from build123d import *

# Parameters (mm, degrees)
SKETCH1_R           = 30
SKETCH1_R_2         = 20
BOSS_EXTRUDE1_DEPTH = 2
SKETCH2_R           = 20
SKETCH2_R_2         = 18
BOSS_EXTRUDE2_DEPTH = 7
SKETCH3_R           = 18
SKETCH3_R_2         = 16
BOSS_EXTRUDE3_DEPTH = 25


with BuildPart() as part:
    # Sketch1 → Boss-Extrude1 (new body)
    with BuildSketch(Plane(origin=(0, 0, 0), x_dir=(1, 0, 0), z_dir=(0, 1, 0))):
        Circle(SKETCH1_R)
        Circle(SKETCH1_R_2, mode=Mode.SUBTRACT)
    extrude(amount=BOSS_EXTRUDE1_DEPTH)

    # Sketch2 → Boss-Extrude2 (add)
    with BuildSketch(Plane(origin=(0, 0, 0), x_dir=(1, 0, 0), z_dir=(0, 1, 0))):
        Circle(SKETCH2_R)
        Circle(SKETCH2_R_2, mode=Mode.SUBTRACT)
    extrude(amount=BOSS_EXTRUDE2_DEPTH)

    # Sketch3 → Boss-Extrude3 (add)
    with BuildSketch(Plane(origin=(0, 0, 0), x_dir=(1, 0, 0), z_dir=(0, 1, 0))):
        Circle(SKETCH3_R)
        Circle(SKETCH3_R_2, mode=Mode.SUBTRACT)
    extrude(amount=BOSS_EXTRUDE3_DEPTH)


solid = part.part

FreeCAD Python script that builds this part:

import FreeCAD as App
import Part
import Sketcher

V = App.Vector

doc = App.newDocument("Part")
body = doc.addObject("PartDesign::Body", "Body")

# Sketch on XZ plane
sketch1 = body.newObject("Sketcher::SketchObject", "Sketch")
sketch1.AttachmentSupport = (doc.getObject("XZ_Plane"), [""])
sketch1.MapMode = "FlatFace"
sketch1.addGeometry([
    Part.Circle(V(0, 0, 0), V(0, 0, 1), 30),
    Part.Circle(V(0, 0, 0), V(0, 0, 1), 20),
], False)
sketch1.addConstraint([
    Sketcher.Constraint("Coincident", 0, 3, -1, 1),
    Sketcher.Constraint("Coincident", 1, 3, -1, 1),
    Sketcher.Constraint("Diameter", 0, 60.0),
    Sketcher.Constraint("Diameter", 1, 40.0),
])
pad1 = body.newObject("PartDesign::Pad", "Pad")
pad1.Profile = sketch1
pad1.Length = 2
pad1.Reversed = True

# Sketch on XZ plane
sketch2 = body.newObject("Sketcher::SketchObject", "Sketch001")
sketch2.AttachmentSupport = (doc.getObject("XZ_Plane"), [""])
sketch2.MapMode = "FlatFace"
sketch2.addGeometry([
    Part.Circle(V(0, 0, 0), V(0, 0, 1), 20),
    Part.Circle(V(0, 0, 0), V(0, 0, 1), 18),
], False)
sketch2.addConstraint([
    Sketcher.Constraint("Coincident", 0, 3, -1, 1),
    Sketcher.Constraint("Coincident", 1, 3, -1, 1),
    Sketcher.Constraint("Diameter", 0, 40.0),
    Sketcher.Constraint("Diameter", 1, 36.0),
])
pad2 = body.newObject("PartDesign::Pad", "Pad001")
pad2.Profile = sketch2
pad2.Length = 7
pad2.Reversed = True

# Sketch on XZ plane
sketch3 = body.newObject("Sketcher::SketchObject", "Sketch002")
sketch3.AttachmentSupport = (doc.getObject("XZ_Plane"), [""])
sketch3.MapMode = "FlatFace"
sketch3.addGeometry([
    Part.Circle(V(0, 0, 0), V(0, 0, 1), 18),
    Part.Circle(V(0, 0, 0), V(0, 0, 1), 16),
], False)
sketch3.addConstraint([
    Sketcher.Constraint("Coincident", 0, 3, -1, 1),
    Sketcher.Constraint("Coincident", 1, 3, -1, 1),
    Sketcher.Constraint("Diameter", 0, 36.0),
    Sketcher.Constraint("Diameter", 1, 32.0),
])
pad3 = body.newObject("PartDesign::Pad", "Pad002")
pad3.Profile = sketch3
pad3.Length = 25
pad3.Reversed = True

doc.recompute()
